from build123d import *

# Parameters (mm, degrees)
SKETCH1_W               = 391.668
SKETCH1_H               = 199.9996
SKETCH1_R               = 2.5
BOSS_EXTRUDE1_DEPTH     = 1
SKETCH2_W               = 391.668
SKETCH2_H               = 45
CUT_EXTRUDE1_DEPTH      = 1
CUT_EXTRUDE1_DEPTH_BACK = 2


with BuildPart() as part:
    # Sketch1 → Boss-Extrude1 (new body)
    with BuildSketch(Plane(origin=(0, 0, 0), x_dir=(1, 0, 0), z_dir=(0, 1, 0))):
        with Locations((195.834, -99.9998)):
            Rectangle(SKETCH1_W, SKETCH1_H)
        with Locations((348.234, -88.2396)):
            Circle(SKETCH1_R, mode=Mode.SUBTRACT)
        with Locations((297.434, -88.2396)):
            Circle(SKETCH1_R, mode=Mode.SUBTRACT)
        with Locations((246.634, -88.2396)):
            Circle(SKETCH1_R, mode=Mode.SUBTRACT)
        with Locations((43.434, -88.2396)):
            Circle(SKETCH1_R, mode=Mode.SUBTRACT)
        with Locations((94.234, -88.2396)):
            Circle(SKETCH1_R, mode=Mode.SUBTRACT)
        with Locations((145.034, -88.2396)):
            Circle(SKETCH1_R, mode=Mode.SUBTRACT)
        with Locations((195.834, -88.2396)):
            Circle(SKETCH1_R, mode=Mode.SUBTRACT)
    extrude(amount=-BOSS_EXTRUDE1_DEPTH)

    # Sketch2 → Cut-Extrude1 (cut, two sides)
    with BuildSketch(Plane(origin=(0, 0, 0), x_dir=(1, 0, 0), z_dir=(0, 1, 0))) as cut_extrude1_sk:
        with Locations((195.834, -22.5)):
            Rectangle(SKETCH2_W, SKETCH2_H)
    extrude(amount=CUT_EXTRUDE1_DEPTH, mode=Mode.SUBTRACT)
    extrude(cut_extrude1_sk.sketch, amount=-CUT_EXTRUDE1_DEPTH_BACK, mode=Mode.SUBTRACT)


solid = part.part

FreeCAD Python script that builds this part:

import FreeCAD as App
import Part
import Sketcher

V = App.Vector
Q = App.Units.Quantity


def add_polygon(sketch, points):
    """Adds a closed chain of lines whose ends are joined by coincident constraints."""
    first, n = sketch.GeometryCount, len(points)
    for a, b in zip(points, points[1:] + points[:1]):
        sketch.addGeometry(Part.LineSegment(App.Vector(*a, 0), App.Vector(*b, 0)), False)
    for i in range(n):
        sketch.addConstraint(Sketcher.Constraint("Coincident", first + i, 2, first + (i + 1) % n, 1))

doc = App.newDocument("Part")
body = doc.addObject("PartDesign::Body", "Body")

# Sketch on XZ plane
sketch1 = body.newObject("Sketcher::SketchObject", "Sketch")
sketch1.AttachmentSupport = (doc.getObject("XZ_Plane"), [""])
sketch1.MapMode = "FlatFace"
add_polygon(sketch1, [(0, 0), (0, 200), (391.7, 200), (391.7, 0)])  # lines 0-3
sketch1.addGeometry(Part.Circle(V(43.4, 88.2, 0), V(0, 0, 1), 2.5), False)  # 4
sketch1.addGeometry(Part.Circle(V(94.2, 88.2, 0), V(0, 0, 1), 2.5), False)  # 5
sketch1.addGeometry(Part.Circle(V(145, 88.2, 0), V(0, 0, 1), 2.5), False)  # 6
sketch1.addGeometry(Part.Circle(V(195.8, 88.2, 0), V(0, 0, 1), 2.5), False)  # 7
sketch1.addGeometry(Part.Circle(V(246.6, 88.2, 0), V(0, 0, 1), 2.5), False)  # 8
sketch1.addGeometry(Part.Circle(V(297.4, 88.2, 0), V(0, 0, 1), 2.5), False)  # 9
sketch1.addGeometry(Part.Circle(V(348.2, 88.2, 0), V(0, 0, 1), 2.5), False)  # 10
sketch1.addConstraint(Sketcher.Constraint("Vertical", 0))
sketch1.addConstraint(Sketcher.Constraint("Horizontal", 1))
sketch1.addConstraint(Sketcher.Constraint("Vertical", 2))
sketch1.addConstraint(Sketcher.Constraint("Horizontal", 3))
sketch1.addConstraint(Sketcher.Constraint("Coincident", 3, 2, -1, 1))
sketch1.addConstraint(Sketcher.Constraint("Equal", 4, 5))
sketch1.addConstraint(Sketcher.Constraint("Equal", 5, 6))
sketch1.addConstraint(Sketcher.Constraint("Equal", 6, 7))
sketch1.addConstraint(Sketcher.Constraint("Equal", 7, 8))
sketch1.addConstraint(Sketcher.Constraint("Equal", 8, 9))
sketch1.addConstraint(Sketcher.Constraint("Equal", 9, 10))
sketch1.addConstraint(Sketcher.Constraint("Horizontal", 4, 3, 5, 3))
sketch1.addConstraint(Sketcher.Constraint("Horizontal", 5, 3, 6, 3))
sketch1.addConstraint(Sketcher.Constraint("Horizontal", 6, 3, 7, 3))
sketch1.addConstraint(Sketcher.Constraint("Horizontal", 7, 3, 8, 3))
sketch1.addConstraint(Sketcher.Constraint("Horizontal", 8, 3, 9, 3))
sketch1.addConstraint(Sketcher.Constraint("Horizontal", 9, 3, 10, 3))
sketch1.addConstraint(Sketcher.Constraint("Diameter", 4, Q("5 mm")))
sketch1.addConstraint(Sketcher.Constraint("DistanceX", 4, 3, 9, 3, Q("254 mm")))
sketch1.addConstraint(Sketcher.Constraint("DistanceX", 5, 3, 10, 3, Q("254 mm")))
sketch1.addConstraint(Sketcher.Constraint("DistanceX", 4, 3, 5, 3, Q("50.8 mm")))
sketch1.addConstraint(Sketcher.Constraint("DistanceX", 5, 3, 6, 3, Q("50.8 mm")))
sketch1.addConstraint(Sketcher.Constraint("DistanceX", 6, 3, 7, 3, Q("50.8 mm")))
sketch1.addConstraint(Sketcher.Constraint("DistanceX", 7, 3, 8, 3, Q("50.8 mm")))
sketch1.addConstraint(Sketcher.Constraint("DistanceX", 1, 1, 1, 2, Q("391.668 mm")))
sketch1.addConstraint(Sketcher.Constraint("DistanceY", 4, 3, 0, 2, Q("111.76 mm")))
sketch1.addConstraint(Sketcher.Constraint("DistanceY", 0, 1, 0, 2, Q("199.9996 mm")))
sketch1.addConstraint(Sketcher.Constraint("DistanceX", -1, 1, 4, 3, Q("43.434 mm")))
pad1 = body.newObject("PartDesign::Pad", "Pad")
pad1.Profile = sketch1
pad1.Length = 1

# Sketch on XZ plane
sketch2 = body.newObject("Sketcher::SketchObject", "Sketch001")
sketch2.AttachmentSupport = (doc.getObject("XZ_Plane"), [""])
sketch2.MapMode = "FlatFace"
add_polygon(sketch2, [(0, 0), (0, 45), (392, 45), (392, 0)])  # lines 0-3
sketch2.addConstraint(Sketcher.Constraint("Vertical", 0))
sketch2.addConstraint(Sketcher.Constraint("Horizontal", 1))
sketch2.addConstraint(Sketcher.Constraint("Vertical", 2))
sketch2.addConstraint(Sketcher.Constraint("Horizontal", 3))
sketch2.addConstraint(Sketcher.Constraint("Coincident", 3, 2, -1, 1))
sketch2.addConstraint(Sketcher.Constraint("DistanceY", 0, 1, 0, 2, Q("45 mm")))
sketch2.addConstraint(Sketcher.Constraint("DistanceX", 1, 1, 1, 2, Q("391.668 mm")))
pocket1 = body.newObject("PartDesign::Pocket", "Pocket")
pocket1.Profile = sketch2
pocket1.Type = "ThroughAll"
pocket1.Midplane = True

doc.recompute()
